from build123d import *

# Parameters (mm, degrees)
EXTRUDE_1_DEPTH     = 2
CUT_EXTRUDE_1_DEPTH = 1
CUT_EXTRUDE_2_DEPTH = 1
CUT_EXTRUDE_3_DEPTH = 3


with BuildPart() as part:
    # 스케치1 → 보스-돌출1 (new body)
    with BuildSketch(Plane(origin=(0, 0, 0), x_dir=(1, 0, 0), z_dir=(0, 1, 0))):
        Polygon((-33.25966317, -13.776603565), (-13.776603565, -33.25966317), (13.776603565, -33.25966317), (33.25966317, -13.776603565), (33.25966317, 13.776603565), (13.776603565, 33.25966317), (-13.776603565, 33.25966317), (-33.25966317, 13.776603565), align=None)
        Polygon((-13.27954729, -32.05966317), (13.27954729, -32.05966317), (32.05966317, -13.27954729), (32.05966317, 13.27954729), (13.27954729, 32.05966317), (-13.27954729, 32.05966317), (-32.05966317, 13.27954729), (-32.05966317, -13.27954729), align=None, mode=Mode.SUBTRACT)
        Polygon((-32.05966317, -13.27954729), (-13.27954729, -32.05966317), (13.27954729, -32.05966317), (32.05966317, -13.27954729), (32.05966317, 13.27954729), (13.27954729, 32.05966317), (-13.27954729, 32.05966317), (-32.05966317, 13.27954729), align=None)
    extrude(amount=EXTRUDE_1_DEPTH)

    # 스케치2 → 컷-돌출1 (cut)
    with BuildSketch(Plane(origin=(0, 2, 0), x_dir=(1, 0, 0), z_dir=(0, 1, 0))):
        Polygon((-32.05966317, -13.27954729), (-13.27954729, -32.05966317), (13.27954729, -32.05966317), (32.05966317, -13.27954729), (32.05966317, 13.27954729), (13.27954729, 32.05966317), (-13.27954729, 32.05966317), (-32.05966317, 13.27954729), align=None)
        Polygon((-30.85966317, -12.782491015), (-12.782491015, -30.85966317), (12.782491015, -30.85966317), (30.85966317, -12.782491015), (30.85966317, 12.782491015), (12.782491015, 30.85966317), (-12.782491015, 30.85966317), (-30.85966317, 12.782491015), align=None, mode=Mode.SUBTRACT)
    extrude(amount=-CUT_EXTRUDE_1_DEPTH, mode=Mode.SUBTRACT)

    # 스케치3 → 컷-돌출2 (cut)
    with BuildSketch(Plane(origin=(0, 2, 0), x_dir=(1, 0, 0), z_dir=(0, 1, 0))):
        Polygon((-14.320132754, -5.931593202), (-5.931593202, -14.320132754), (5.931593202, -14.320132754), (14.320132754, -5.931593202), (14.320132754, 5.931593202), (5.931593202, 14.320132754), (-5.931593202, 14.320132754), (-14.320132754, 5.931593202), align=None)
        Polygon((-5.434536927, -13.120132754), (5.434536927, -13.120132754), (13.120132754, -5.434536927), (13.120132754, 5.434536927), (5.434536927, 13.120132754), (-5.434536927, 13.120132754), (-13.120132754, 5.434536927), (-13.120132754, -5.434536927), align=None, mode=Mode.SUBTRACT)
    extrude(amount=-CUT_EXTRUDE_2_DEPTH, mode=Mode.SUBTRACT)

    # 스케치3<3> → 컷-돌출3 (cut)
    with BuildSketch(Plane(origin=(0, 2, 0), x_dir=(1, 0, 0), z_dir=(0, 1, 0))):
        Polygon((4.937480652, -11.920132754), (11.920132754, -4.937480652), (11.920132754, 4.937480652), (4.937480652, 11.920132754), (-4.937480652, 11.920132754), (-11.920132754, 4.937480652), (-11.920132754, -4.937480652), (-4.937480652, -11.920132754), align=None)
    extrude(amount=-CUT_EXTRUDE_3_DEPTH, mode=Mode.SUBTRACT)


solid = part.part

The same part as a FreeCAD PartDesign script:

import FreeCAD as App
import Part
import Sketcher


def add_polygon(sketch, points):
    """Adds a closed chain of lines whose ends are joined by coincident constraints."""
    first, n = sketch.GeometryCount, len(points)
    for a, b in zip(points, points[1:] + points[:1]):
        sketch.addGeometry(Part.LineSegment(App.Vector(*a, 0), App.Vector(*b, 0)), False)
    for i in range(n):
        sketch.addConstraint(Sketcher.Constraint("Coincident", first + i, 2, first + (i + 1) % n, 1))

doc = App.newDocument("Part")
body = doc.addObject("PartDesign::Body", "Body")

sketch1 = body.newObject("Sketcher::SketchObject", "Sketch")
sketch1.AttachmentSupport = (doc.getObject("XZ_Plane"), [""])
sketch1.MapMode = "FlatFace"
add_polygon(sketch1, [(-33, 14), (-14, 33), (14, 33), (33, 14), (33, -14), (14, -33), (-14, -33), (-33, -14)])
sketch1.addConstraint([
    Sketcher.Constraint("Horizontal", 1),
    Sketcher.Constraint("Vertical", 3),
    Sketcher.Constraint("Horizontal", 5),
    Sketcher.Constraint("Vertical", 7),
    Sketcher.Constraint("Symmetric", 0, 2, 4, 2, -1, 1),
    Sketcher.Constraint("Symmetric", 2, 2, 6, 2, -1, 1),
    Sketcher.Constraint("Perpendicular", 0, 2),
    Sketcher.Constraint("Perpendicular", 2, 4),
    Sketcher.Constraint("Perpendicular", 4, 6),
    Sketcher.Constraint("Horizontal", 3, 2, 6, 2),
    Sketcher.Constraint("Vertical", 1, 2, 4, 2),
    Sketcher.Constraint("Equal", 5, 3),
    Sketcher.Constraint("DistanceX", 1, 1, 1, 2, 27.553207),
    Sketcher.Constraint("DistanceX", 1, 2, 2, 2, 19.48306),
])
pad1 = body.newObject("PartDesign::Pad", "Pad")
pad1.Profile = sketch1
pad1.Length = 2
pad1.Reversed = True

sketch2 = body.newObject("Sketcher::SketchObject", "Sketch001")
sketch2.AttachmentSupport = (doc.getObject("XZ_Plane"), [""])
sketch2.MapMode = "FlatFace"
sketch2.AttachmentOffset = App.Placement(App.Vector(0, 0, -2), App.Rotation())
add_polygon(sketch2, [(-32, 13), (-13, 32), (13, 32), (32, 13), (32, -13), (13, -32), (-13, -32), (-32, -13)])
add_polygon(sketch2, [(-13, 31), (-31, 13), (-31, -13), (-13, -31), (13, -31), (31, -13), (31, 13), (13, 31)])
sketch2.addConstraint([
    Sketcher.Constraint("Horizontal", 1),
    Sketcher.Constraint("Vertical", 3),
    Sketcher.Constraint("Horizontal", 5),
    Sketcher.Constraint("Vertical", 7),
    Sketcher.Constraint("Vertical", 9),
    Sketcher.Constraint("Horizontal", 11),
    Sketcher.Constraint("Vertical", 13),
    Sketcher.Constraint("Horizontal", 15),
    Sketcher.Constraint("Symmetric", 0, 2, 4, 2, -1, 1),
    Sketcher.Constraint("Symmetric", 2, 2, 6, 2, -1, 1),
    Sketcher.Constraint("Symmetric", 8, 2, 12, 2, -1, 1),
    Sketcher.Constraint("Symmetric", 10, 2, 14, 2, -1, 1),
    Sketcher.Constraint("Perpendicular", 0, 2),
    Sketcher.Constraint("Perpendicular", 2, 4),
    Sketcher.Constraint("Perpendicular", 4, 6),
    Sketcher.Constraint("Perpendicular", 6, 8),
    Sketcher.Constraint("Perpendicular", 8, 10),
    Sketcher.Constraint("Perpendicular", 10, 12),
    Sketcher.Constraint("Perpendicular", 12, 14),
    Sketcher.Constraint("Horizontal", 3, 2, 6, 2),
    Sketcher.Constraint("Horizontal", 9, 2, 12, 2),
    Sketcher.Constraint("Vertical", 1, 2, 4, 2),
    Sketcher.Constraint("Equal", 5, 3),
    Sketcher.Constraint("Equal", 15, 9),
    Sketcher.Constraint("DistanceX", 7, 2, 8, 2, 1.2),
    Sketcher.Constraint("DistanceX", 1, 1, 1, 2, 26.559095),
    Sketcher.Constraint("DistanceX", 11, 1, 11, 2, 25.564982),
    Sketcher.Constraint("DistanceX", 0, 2, 2, 2, 45.33921),
])
pocket1 = body.newObject("PartDesign::Pocket", "Pocket")
pocket1.Profile = sketch2
pocket1.Length = 1
pocket1.Reversed = True

sketch3 = body.newObject("Sketcher::SketchObject", "Sketch002")
sketch3.AttachmentSupport = (doc.getObject("XZ_Plane"), [""])
sketch3.MapMode = "FlatFace"
sketch3.AttachmentOffset = App.Placement(App.Vector(0, 0, -2), App.Rotation())
add_polygon(sketch3, [(-14, 6), (-6, 14), (6, 14), (14, 6), (14, -6), (6, -14), (-6, -14), (-14, -6)])
add_polygon(sketch3, [(5, 13), (-5, 13), (-13, 5), (-13, -5), (-5, -13), (5, -13), (13, -5), (13, 5)])
sketch3.addConstraint([
    Sketcher.Constraint("Horizontal", 1),
    Sketcher.Constraint("Vertical", 3),
    Sketcher.Constraint("Horizontal", 5),
    Sketcher.Constraint("Vertical", 7),
    Sketcher.Constraint("Horizontal", 8),
    Sketcher.Constraint("Vertical", 10),
    Sketcher.Constraint("Horizontal", 12),
    Sketcher.Constraint("Vertical", 14),
    Sketcher.Constraint("Symmetric", 0, 2, 4, 2, -1, 1),
    Sketcher.Constraint("Symmetric", 2, 2, 6, 2, -1, 1),
    Sketcher.Constraint("Symmetric", 8, 2, 12, 2, -1, 1),
    Sketcher.Constraint("Symmetric", 9, 2, 13, 2, -1, 1),
    Sketcher.Constraint("Perpendicular", 0, 2),
    Sketcher.Constraint("Perpendicular", 2, 4),
    Sketcher.Constraint("Perpendicular", 4, 6),
    Sketcher.Constraint("Perpendicular", 6, 9),
    Sketcher.Constraint("Perpendicular", 9, 11),
    Sketcher.Constraint("Perpendicular", 13, 15),
    Sketcher.Constraint("Horizontal", 3, 2, 6, 2),
    Sketcher.Constraint("Horizontal", 10, 2, 13, 2),
    Sketcher.Constraint("Horizontal", 9, 2, 14, 2),
    Sketcher.Constraint("Vertical", 1, 2, 4, 2),
    Sketcher.Constraint("Equal", 5, 3),
    Sketcher.Constraint("Equal", 12, 10),
    Sketcher.Constraint("DistanceY", 8, 2, 0, 2, 1.2),
    Sketcher.Constraint("DistanceX", 1, 1, 1, 2, 11.863186),
    Sketcher.Constraint("DistanceX", 8, 2, 8, 1, 10.869074),
    Sketcher.Constraint("DistanceX", 1, 2, 2, 2, 8.38854),
])
pocket2 = body.newObject("PartDesign::Pocket", "Pocket001")
pocket2.Profile = sketch3
pocket2.Length = 1
pocket2.Reversed = True

sketch4 = body.newObject("Sketcher::SketchObject", "Sketch003")
sketch4.AttachmentSupport = (doc.getObject("XZ_Plane"), [""])
sketch4.MapMode = "FlatFace"
sketch4.AttachmentOffset = App.Placement(App.Vector(0, 0, -2), App.Rotation())
add_polygon(sketch4, [(5, 12), (12, 5), (12, -5), (5, -12), (-5, -12), (-12, -5), (-12, 5), (-5, 12)])
sketch4.addConstraint([
    Sketcher.Constraint("Vertical", 1),
    Sketcher.Constraint("Horizontal", 3),
    Sketcher.Constraint("Vertical", 5),
    Sketcher.Constraint("Horizontal", 7),
    Sketcher.Constraint("Symmetric", 0, 2, 4, 2, -1, 1),
    Sketcher.Constraint("Symmetric", 2, 2, 6, 2, -1, 1),
    Sketcher.Constraint("Perpendicular", 0, 2),
    Sketcher.Constraint("Perpendicular", 2, 4),
    Sketcher.Constraint("Perpendicular", 4, 6),
    Sketcher.Constraint("Horizontal", 1, 2, 4, 2),
    Sketcher.Constraint("Vertical", 3, 2, 6, 2),
    Sketcher.Constraint("Equal", 7, 1),
    Sketcher.Constraint("DistanceX", 3, 2, 3, 1, 9.874961),
    Sketcher.Constraint("Distance", 0, 9.874961),
])
pocket3 = body.newObject("PartDesign::Pocket", "Pocket002")
pocket3.Profile = sketch4
pocket3.Length = 3
pocket3.Reversed = True

doc.recompute()
